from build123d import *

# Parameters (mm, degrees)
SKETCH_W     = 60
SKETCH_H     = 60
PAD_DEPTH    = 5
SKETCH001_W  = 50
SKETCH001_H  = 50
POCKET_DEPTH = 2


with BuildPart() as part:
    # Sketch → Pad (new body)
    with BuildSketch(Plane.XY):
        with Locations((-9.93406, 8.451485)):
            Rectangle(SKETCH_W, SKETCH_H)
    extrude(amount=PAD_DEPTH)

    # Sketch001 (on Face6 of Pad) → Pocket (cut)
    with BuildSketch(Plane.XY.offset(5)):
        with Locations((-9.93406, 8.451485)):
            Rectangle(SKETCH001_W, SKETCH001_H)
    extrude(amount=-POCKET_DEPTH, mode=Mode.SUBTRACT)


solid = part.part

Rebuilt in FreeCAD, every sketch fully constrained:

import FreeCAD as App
import Part
import Sketcher
from FreeCAD import Vector


def add_polygon(sketch, points):
    """Adds a closed chain of lines whose ends are joined by coincident constraints."""
    first, n = sketch.GeometryCount, len(points)
    for a, b in zip(points, points[1:] + points[:1]):
        sketch.addGeometry(Part.LineSegment(App.Vector(*a, 0), App.Vector(*b, 0)), False)
    for i in range(n):
        sketch.addConstraint(Sketcher.Constraint("Coincident", first + i, 2, first + (i + 1) % n, 1))

doc = App.newDocument("Part")
params = doc.addObject("Spreadsheet::Sheet", "Params")
for row, (alias, value) in enumerate([
    ("sketch1_width", "60 mm"),
    ("pad1_length", "5 mm"),
    ("sketch2_width", "50 mm"),
    ("pocket1_length", "2 mm"),
], start=1):
    params.set(f"A{row}", alias)
    params.set(f"B{row}", "=" + value)
    params.setAlias(f"B{row}", alias)

body = doc.addObject("PartDesign::Body", "Body")

# Sketch on XY plane
sketch1 = body.newObject("Sketcher::SketchObject", "Sketch")
sketch1.AttachmentSupport = (doc.getObject("XY_Plane"), [""])
sketch1.MapMode = "FlatFace"
add_polygon(sketch1, [(-39.93406, 38.451485), (-39.93406, -21.548515), (20.06594, -21.548515), (20.06594, 38.451485)])  # lines 0-3
sketch1.addConstraint([
    Sketcher.Constraint("Vertical", 0),
    Sketcher.Constraint("Horizontal", 1),
    Sketcher.Constraint("Vertical", 2),
    Sketcher.Constraint("Horizontal", 3),
    Sketcher.Constraint("Equal", 3, 0),
    Sketcher.Constraint("DistanceX", 1, 1, 1, 2, 60.0),
    Sketcher.Constraint("DistanceX", 0, 2, -1, 1, 39.93406),
    Sketcher.Constraint("DistanceY", 0, 2, -1, 1, 21.548515),
])
sketch1.setExpression("Constraints[9]", "Params.sketch1_width")
pad1 = body.newObject("PartDesign::Pad", "Pad")
pad1.Profile = sketch1
pad1.setExpression("Length", "Params.pad1_length")

# Sketch on XY plane
sketch2 = body.newObject("Sketcher::SketchObject", "Sketch001")
sketch2.AttachmentSupport = (doc.getObject("XY_Plane"), [""])
sketch2.MapMode = "FlatFace"
sketch2.AttachmentOffset = App.Placement(Vector(0, 0, 5), App.Rotation())
add_polygon(sketch2, [(-34.93406, 33.451485), (-34.93406, -16.548515), (15.06594, -16.548515), (15.06594, 33.451485)])  # lines 0-3
sketch2.addConstraint([
    Sketcher.Constraint("Vertical", 0),
    Sketcher.Constraint("Horizontal", 1),
    Sketcher.Constraint("Vertical", 2),
    Sketcher.Constraint("Horizontal", 3),
    Sketcher.Constraint("Equal", 3, 0),
    Sketcher.Constraint("DistanceX", 1, 1, 1, 2, 50.0),
    Sketcher.Constraint("DistanceX", 0, 2, -1, 1, 34.93406),
    Sketcher.Constraint("DistanceY", 0, 2, -1, 1, 16.548515),
])
sketch2.setExpression("Constraints[9]", "Params.sketch2_width")
pocket1 = body.newObject("PartDesign::Pocket", "Pocket")
pocket1.Profile = sketch2
pocket1.setExpression("Length", "Params.pocket1_length")

doc.recompute()
